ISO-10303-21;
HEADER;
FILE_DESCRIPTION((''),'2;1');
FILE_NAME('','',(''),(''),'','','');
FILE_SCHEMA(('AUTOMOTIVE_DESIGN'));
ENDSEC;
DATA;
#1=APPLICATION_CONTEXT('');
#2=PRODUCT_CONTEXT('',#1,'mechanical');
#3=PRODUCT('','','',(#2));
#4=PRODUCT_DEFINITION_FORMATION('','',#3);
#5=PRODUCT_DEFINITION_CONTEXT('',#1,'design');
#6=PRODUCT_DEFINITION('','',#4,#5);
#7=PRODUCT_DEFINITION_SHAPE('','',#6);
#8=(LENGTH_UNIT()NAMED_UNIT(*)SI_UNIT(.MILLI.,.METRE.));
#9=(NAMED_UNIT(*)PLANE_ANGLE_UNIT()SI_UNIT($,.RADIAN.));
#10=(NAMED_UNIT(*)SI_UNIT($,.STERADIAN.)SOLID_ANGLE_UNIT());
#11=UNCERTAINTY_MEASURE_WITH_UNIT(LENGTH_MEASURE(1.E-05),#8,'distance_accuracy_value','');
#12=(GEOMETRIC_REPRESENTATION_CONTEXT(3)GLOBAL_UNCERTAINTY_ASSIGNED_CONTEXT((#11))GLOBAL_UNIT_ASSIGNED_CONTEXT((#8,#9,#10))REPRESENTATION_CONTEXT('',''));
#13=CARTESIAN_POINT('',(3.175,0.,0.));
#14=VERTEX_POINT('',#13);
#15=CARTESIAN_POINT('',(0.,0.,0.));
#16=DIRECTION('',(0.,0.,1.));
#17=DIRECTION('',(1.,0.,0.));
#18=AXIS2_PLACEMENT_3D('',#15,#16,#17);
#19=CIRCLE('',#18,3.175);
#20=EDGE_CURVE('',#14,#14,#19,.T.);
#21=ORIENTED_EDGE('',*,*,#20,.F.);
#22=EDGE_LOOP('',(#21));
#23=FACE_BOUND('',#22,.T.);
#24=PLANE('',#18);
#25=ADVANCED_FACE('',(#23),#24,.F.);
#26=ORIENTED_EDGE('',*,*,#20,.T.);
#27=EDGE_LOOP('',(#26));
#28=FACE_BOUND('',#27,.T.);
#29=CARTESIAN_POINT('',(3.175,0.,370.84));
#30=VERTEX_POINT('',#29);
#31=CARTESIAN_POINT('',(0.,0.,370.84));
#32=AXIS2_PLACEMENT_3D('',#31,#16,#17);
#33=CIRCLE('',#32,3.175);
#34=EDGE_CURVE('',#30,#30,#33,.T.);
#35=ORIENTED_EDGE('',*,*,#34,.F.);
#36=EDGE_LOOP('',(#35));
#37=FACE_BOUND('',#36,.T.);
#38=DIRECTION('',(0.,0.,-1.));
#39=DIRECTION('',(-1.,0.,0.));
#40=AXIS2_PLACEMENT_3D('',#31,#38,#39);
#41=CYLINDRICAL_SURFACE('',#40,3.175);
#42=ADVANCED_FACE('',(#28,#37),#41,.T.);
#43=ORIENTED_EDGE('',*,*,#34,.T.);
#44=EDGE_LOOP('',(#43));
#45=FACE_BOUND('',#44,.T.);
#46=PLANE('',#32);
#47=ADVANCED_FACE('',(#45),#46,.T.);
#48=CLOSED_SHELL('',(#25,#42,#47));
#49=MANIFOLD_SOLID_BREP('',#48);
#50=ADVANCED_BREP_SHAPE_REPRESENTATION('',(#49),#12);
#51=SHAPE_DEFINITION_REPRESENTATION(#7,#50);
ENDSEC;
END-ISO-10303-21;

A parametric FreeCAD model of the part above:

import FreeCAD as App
import Part
import Sketcher
Q = App.Units.Quantity

doc = App.newDocument("Part")
body = doc.addObject("PartDesign::Body", "Body")

sketch1 = doc.addObject("Sketcher::SketchObject", "Sketch")
body.addObject(sketch1)
sketch1.AttachmentSupport = (doc.XY_Plane, [""])
sketch1.MapMode = "FlatFace"
sketch1.addGeometry(Part.Circle(App.Vector(0, 0, 0), App.Vector(0, 0, 1), 3.175), False)
sketch1.addConstraint([
    Sketcher.Constraint("Coincident", 0, 3, -1, 1),
    Sketcher.Constraint("Diameter", 0, Q("0.25 in")),
])
pad1 = doc.addObject("PartDesign::Pad", "Pad")
body.addObject(pad1)
pad1.Profile = sketch1
pad1.Length = Q("14.6 in")

doc.recompute()
